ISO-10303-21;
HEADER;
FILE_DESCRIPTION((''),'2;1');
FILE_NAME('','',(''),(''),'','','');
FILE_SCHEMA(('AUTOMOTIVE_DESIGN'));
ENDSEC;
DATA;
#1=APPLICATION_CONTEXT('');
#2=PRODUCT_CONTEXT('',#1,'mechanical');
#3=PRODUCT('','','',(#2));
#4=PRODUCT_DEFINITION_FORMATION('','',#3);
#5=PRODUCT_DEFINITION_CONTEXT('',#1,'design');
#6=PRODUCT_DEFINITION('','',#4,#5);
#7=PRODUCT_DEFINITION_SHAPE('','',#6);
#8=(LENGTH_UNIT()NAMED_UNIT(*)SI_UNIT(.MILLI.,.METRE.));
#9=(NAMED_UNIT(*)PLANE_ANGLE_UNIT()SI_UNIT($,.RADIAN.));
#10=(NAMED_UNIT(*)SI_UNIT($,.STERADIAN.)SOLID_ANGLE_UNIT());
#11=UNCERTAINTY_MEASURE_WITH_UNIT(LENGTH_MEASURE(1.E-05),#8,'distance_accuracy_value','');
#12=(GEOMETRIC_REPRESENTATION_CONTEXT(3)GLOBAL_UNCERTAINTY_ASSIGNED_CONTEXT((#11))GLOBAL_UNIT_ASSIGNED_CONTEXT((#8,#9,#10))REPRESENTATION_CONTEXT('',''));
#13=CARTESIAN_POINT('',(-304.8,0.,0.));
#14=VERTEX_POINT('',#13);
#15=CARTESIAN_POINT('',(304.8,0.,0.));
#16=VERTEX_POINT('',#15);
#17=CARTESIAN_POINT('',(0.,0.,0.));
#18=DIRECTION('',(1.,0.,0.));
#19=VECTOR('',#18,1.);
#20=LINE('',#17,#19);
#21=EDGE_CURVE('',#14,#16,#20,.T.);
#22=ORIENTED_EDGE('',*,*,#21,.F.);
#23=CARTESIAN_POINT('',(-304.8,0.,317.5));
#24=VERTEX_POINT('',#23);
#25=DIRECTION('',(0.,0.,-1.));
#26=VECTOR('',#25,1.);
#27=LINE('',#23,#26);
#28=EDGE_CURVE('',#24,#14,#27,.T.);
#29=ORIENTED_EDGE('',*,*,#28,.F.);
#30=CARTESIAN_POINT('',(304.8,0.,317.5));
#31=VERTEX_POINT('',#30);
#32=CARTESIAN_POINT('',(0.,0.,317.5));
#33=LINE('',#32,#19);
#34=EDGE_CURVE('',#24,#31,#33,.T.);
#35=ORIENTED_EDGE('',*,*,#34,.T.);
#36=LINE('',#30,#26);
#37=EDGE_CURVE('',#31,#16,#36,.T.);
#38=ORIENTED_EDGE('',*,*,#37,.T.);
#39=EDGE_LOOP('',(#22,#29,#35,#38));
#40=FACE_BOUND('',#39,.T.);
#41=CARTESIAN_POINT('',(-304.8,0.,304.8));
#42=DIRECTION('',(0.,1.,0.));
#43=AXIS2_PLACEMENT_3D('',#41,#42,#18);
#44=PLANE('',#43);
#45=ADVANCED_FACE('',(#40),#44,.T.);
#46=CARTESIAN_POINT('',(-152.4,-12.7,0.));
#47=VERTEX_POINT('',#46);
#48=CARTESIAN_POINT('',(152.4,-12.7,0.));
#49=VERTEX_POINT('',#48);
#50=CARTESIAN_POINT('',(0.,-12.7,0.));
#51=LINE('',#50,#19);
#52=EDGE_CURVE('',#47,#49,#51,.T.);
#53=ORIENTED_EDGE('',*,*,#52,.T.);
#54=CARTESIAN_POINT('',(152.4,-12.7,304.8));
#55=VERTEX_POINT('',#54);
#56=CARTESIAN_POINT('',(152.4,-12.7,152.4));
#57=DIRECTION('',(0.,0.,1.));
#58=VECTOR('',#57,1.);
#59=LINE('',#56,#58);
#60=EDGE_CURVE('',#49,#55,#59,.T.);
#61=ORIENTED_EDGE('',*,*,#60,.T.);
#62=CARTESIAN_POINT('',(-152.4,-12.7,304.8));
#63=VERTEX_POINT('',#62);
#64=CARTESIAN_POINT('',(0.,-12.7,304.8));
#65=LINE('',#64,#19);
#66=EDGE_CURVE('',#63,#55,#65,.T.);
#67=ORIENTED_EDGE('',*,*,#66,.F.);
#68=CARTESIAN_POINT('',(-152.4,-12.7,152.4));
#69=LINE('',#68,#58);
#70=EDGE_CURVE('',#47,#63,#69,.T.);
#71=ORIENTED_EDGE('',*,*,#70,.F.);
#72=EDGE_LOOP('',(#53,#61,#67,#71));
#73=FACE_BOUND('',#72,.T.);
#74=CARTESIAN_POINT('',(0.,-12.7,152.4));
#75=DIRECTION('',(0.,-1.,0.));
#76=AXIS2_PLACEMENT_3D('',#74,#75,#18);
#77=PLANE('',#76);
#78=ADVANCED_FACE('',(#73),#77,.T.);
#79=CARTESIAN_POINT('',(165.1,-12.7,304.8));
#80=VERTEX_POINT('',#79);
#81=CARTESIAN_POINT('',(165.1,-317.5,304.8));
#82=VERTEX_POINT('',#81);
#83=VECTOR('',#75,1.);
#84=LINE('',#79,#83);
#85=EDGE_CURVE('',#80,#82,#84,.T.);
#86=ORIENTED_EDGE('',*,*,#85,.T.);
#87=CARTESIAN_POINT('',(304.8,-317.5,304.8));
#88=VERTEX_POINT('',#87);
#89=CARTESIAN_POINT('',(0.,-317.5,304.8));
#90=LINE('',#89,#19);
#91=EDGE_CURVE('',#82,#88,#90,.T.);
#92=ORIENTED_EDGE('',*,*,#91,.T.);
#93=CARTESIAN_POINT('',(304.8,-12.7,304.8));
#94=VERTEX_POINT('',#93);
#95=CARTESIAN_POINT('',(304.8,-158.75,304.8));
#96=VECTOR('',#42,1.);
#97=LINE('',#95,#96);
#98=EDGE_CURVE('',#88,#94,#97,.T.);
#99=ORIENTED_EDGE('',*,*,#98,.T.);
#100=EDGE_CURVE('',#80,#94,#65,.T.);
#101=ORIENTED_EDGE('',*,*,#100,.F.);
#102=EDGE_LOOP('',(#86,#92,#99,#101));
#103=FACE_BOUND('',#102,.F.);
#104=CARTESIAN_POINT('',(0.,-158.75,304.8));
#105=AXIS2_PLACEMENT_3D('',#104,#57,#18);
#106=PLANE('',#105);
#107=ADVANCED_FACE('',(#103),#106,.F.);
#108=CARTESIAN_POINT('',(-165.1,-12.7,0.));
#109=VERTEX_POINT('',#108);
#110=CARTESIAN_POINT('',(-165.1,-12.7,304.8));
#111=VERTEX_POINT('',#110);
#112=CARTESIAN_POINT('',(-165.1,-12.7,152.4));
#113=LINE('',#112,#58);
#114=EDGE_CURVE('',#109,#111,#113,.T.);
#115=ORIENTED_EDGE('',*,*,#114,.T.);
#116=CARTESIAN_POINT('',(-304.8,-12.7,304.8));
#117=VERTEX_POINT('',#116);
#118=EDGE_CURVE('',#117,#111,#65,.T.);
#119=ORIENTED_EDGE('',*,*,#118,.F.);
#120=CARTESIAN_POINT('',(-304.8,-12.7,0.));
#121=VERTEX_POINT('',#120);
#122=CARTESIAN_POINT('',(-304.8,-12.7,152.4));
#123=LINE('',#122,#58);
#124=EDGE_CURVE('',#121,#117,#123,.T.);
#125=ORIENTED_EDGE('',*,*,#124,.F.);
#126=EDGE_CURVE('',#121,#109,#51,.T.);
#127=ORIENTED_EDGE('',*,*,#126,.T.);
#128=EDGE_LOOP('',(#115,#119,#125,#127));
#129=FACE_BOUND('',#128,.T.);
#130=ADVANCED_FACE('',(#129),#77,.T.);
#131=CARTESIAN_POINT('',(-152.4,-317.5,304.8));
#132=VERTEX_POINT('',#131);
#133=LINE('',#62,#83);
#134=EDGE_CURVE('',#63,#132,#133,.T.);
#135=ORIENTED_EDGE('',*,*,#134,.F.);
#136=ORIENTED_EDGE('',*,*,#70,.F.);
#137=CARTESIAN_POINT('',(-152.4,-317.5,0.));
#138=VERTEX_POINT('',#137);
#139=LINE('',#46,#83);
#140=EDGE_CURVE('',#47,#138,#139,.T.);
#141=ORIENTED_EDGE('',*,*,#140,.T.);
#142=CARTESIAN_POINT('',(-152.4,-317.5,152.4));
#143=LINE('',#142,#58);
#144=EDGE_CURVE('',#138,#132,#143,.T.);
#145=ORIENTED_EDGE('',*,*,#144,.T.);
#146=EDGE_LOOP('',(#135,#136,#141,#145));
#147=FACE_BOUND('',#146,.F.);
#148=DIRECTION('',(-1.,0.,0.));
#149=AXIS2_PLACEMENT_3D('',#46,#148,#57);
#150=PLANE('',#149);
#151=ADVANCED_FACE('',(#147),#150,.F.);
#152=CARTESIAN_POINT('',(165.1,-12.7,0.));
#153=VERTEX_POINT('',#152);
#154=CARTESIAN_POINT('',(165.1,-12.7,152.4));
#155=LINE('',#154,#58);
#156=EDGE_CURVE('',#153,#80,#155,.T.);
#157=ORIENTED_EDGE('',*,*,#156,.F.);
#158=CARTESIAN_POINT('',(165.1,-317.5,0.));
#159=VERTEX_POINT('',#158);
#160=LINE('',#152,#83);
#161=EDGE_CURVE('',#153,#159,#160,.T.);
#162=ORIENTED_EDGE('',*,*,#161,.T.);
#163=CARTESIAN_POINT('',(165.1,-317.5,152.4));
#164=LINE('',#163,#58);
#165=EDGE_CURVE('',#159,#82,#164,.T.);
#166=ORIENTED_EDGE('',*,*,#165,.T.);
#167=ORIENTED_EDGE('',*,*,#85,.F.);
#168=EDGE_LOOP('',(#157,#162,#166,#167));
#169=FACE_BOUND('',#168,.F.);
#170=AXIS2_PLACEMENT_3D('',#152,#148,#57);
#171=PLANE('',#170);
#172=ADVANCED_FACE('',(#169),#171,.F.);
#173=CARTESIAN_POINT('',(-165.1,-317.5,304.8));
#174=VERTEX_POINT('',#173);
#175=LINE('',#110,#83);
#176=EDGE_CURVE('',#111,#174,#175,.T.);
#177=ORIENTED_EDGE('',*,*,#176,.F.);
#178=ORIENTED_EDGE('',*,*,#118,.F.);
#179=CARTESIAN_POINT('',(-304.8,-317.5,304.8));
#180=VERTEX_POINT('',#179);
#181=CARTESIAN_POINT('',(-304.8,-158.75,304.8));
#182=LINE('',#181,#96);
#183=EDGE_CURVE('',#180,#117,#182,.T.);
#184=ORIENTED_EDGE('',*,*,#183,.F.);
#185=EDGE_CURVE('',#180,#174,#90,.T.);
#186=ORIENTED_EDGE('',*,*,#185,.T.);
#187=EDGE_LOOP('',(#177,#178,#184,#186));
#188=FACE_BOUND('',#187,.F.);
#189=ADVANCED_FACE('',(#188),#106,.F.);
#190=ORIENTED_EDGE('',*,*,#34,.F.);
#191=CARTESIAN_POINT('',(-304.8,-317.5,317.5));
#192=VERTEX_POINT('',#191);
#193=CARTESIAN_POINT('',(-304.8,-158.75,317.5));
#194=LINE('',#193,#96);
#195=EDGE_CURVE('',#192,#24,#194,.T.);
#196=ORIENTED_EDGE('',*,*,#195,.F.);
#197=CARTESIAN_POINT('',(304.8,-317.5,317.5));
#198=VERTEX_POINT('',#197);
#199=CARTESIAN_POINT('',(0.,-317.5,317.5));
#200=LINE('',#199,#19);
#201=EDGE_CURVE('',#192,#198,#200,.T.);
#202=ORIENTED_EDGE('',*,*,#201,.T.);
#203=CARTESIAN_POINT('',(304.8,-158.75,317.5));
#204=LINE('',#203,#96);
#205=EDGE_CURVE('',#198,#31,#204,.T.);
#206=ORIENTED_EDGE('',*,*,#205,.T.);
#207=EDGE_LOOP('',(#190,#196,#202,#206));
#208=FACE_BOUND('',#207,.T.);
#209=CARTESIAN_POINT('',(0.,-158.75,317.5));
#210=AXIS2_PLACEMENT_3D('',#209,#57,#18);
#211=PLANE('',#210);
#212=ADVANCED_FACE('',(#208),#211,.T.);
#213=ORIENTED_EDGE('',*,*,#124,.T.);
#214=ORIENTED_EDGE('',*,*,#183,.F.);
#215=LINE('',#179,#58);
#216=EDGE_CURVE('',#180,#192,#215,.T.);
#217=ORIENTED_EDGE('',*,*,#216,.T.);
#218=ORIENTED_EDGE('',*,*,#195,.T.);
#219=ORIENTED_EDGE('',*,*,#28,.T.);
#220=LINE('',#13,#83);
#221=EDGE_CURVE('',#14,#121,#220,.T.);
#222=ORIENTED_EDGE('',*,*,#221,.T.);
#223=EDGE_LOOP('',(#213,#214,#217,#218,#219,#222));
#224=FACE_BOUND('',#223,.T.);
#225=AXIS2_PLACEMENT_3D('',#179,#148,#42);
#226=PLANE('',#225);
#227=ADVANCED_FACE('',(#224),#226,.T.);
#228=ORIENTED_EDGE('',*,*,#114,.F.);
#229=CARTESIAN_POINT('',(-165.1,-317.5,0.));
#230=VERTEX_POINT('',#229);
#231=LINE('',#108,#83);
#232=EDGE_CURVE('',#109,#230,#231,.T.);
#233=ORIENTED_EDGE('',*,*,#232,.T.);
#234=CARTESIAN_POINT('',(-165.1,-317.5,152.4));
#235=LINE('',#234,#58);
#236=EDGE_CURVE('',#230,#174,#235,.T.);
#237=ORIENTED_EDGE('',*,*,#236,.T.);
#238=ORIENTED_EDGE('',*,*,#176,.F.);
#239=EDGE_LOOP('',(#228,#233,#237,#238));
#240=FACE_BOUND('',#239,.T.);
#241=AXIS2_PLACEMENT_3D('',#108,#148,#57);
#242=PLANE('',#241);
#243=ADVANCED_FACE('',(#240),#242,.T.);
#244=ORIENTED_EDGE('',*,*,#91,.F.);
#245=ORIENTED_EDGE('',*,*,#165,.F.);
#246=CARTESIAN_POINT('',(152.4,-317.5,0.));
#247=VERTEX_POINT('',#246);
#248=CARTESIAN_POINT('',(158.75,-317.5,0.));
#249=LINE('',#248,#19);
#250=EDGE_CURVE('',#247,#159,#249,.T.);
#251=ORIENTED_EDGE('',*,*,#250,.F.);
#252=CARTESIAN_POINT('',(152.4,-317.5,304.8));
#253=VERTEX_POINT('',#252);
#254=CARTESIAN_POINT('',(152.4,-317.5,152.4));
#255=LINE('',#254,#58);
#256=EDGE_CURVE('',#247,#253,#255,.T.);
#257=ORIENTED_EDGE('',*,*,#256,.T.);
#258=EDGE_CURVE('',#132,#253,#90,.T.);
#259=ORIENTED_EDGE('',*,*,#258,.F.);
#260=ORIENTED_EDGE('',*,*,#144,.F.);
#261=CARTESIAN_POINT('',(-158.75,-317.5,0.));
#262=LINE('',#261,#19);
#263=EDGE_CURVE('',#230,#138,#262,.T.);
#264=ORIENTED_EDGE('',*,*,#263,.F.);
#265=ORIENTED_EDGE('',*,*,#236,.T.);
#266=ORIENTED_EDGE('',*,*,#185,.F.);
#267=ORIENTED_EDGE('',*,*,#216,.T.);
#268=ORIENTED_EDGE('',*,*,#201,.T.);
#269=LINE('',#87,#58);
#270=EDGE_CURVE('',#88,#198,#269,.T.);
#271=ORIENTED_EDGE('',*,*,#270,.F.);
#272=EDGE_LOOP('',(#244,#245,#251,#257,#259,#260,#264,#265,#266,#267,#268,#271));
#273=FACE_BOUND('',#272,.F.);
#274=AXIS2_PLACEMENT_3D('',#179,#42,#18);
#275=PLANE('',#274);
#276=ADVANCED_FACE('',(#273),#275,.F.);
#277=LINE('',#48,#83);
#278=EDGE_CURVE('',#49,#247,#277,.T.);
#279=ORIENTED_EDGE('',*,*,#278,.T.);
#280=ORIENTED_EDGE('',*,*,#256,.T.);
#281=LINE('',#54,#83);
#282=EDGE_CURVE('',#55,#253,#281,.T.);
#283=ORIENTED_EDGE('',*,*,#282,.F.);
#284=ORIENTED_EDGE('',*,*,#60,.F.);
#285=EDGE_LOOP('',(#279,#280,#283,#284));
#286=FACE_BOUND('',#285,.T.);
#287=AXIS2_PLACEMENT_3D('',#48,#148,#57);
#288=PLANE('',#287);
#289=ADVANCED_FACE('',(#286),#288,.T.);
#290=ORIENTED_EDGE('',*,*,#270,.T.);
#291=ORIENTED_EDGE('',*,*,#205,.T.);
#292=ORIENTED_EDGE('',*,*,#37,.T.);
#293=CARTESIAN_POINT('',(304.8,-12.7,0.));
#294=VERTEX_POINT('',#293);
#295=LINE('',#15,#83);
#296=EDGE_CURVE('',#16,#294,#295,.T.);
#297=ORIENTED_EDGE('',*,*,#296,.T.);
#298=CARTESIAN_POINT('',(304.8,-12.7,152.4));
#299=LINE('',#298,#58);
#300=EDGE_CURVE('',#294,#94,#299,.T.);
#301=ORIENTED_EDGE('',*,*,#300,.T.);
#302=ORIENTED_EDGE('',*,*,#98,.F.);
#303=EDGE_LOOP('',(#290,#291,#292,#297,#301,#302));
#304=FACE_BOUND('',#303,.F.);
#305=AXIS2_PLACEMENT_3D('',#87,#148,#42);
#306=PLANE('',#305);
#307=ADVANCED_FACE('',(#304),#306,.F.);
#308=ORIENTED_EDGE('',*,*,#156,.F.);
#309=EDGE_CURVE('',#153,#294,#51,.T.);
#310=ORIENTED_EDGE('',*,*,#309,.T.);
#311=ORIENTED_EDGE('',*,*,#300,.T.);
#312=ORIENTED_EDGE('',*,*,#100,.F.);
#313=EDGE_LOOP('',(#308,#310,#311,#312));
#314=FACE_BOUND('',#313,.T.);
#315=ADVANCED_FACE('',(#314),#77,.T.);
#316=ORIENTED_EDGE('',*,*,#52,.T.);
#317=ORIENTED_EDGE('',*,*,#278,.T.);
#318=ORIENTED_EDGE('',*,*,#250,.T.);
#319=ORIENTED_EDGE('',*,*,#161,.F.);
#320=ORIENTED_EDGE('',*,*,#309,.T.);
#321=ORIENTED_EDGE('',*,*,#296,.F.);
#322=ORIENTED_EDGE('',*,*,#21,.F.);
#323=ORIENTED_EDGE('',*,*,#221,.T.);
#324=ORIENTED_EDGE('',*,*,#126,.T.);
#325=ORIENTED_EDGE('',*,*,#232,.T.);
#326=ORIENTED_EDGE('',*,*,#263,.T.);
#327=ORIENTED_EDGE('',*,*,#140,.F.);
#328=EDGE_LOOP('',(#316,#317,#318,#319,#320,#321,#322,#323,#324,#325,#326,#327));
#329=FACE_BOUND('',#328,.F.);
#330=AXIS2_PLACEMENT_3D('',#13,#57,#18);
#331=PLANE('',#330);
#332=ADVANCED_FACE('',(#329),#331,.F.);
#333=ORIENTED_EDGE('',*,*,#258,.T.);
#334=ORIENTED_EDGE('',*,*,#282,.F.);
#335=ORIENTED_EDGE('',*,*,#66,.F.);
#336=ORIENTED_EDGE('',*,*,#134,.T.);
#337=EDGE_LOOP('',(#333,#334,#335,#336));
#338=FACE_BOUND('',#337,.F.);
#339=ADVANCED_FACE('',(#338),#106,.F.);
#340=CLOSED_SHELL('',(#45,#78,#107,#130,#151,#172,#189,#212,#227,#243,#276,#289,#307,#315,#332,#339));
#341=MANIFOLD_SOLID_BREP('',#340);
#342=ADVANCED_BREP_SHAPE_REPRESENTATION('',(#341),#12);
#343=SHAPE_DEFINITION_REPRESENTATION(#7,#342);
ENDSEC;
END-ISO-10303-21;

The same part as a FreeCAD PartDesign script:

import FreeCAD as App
import Part
import Sketcher
Q = App.Units.Quantity

doc = App.newDocument("Part")
params = doc.addObject("Spreadsheet::Sheet", "Params")
for row, (alias, value) in enumerate([
    ("sketch1_width", "24 in"),
    ("sketch1_height", "12 in"),
    ("pad1_length", "0.5 in"),
    ("sketch2_height", "12 in"),
    ("sketch2_width", "0.5 in"),
    ("pad2_length", "12 in"),
    ("sketch3_width", "24 in"),
    ("sketch3_height", "12.5 in"),
    ("pad3_length", "0.5 in"),
], start=1):
    params.set(f"A{row}", alias)
    params.set(f"B{row}", "=" + value)
    params.setAlias(f"B{row}", alias)

body = doc.addObject("PartDesign::Body", "Body")

# Sketch on XZ plane
sketch1 = body.newObject("Sketcher::SketchObject", "Sketch")
sketch1.AttachmentSupport = (doc.getObject("XZ_Plane"), [""])
sketch1.MapMode = "FlatFace"
sketch1.addGeometry(Part.LineSegment(App.Vector(-305, 305, 0), App.Vector(-305, 0, 0)), False)
sketch1.addGeometry(Part.LineSegment(App.Vector(-305, 0, 0), App.Vector(305, 0, 0)), False)
sketch1.addGeometry(Part.LineSegment(App.Vector(305, 0, 0), App.Vector(305, 305, 0)), False)
sketch1.addGeometry(Part.LineSegment(App.Vector(305, 305, 0), App.Vector(-305, 305, 0)), False)
sketch1.addConstraint(Sketcher.Constraint("Coincident", 0, 2, 1, 1))
sketch1.addConstraint(Sketcher.Constraint("Coincident", 1, 2, 2, 1))
sketch1.addConstraint(Sketcher.Constraint("Coincident", 2, 2, 3, 1))
sketch1.addConstraint(Sketcher.Constraint("Coincident", 3, 2, 0, 1))
sketch1.addConstraint(Sketcher.Constraint("Vertical", 0))
sketch1.addConstraint(Sketcher.Constraint("Horizontal", 1))
sketch1.addConstraint(Sketcher.Constraint("Vertical", 2))
sketch1.addConstraint(Sketcher.Constraint("Horizontal", 3))
sketch1.addConstraint(Sketcher.Constraint("Symmetric", 0, 2, 1, 2, -1, 1))
sketch1.addConstraint(Sketcher.Constraint("DistanceX", 1, 1, 1, 2, Q("24 in")))
sketch1.addConstraint(Sketcher.Constraint("DistanceY", 0, 2, 0, 1, Q("12 in")))
sketch1.setExpression("Constraints[9]", "Params.sketch1_width")
sketch1.setExpression("Constraints[10]", "Params.sketch1_height")
pad1 = body.newObject("PartDesign::Pad", "Pad")
pad1.Profile = sketch1
pad1.setExpression("Length", "Params.pad1_length")

# Sketch on XZ plane
sketch2 = body.newObject("Sketcher::SketchObject", "Sketch001")
sketch2.AttachmentSupport = (doc.getObject("XZ_Plane"), [""])
sketch2.MapMode = "FlatFace"
sketch2.AttachmentOffset = App.Placement(App.Vector(0, 0, 0.5 * 25.4), App.Rotation())
sketch2.addGeometry(Part.LineSegment(App.Vector(-165, 305, 0), App.Vector(-165, 0, 0)), False)
sketch2.addGeometry(Part.LineSegment(App.Vector(-165, 0, 0), App.Vector(-152, 0, 0)), False)
sketch2.addGeometry(Part.LineSegment(App.Vector(-152, 0, 0), App.Vector(-152, 305, 0)), False)
sketch2.addGeometry(Part.LineSegment(App.Vector(-152, 305, 0), App.Vector(-165, 305, 0)), False)
sketch2.addGeometry(Part.LineSegment(App.Vector(152, 305, 0), App.Vector(152, 0, 0)), False)
sketch2.addGeometry(Part.LineSegment(App.Vector(152, 0, 0), App.Vector(165, 0, 0)), False)
sketch2.addGeometry(Part.LineSegment(App.Vector(165, 0, 0), App.Vector(165, 305, 0)), False)
sketch2.addGeometry(Part.LineSegment(App.Vector(165, 305, 0), App.Vector(152, 305, 0)), False)
sketch2.addConstraint(Sketcher.Constraint("Coincident", 0, 2, 1, 1))
sketch2.addConstraint(Sketcher.Constraint("Coincident", 1, 2, 2, 1))
sketch2.addConstraint(Sketcher.Constraint("Coincident", 2, 2, 3, 1))
sketch2.addConstraint(Sketcher.Constraint("Coincident", 3, 2, 0, 1))
sketch2.addConstraint(Sketcher.Constraint("Coincident", 4, 2, 5, 1))
sketch2.addConstraint(Sketcher.Constraint("Coincident", 5, 2, 6, 1))
sketch2.addConstraint(Sketcher.Constraint("Coincident", 6, 2, 7, 1))
sketch2.addConstraint(Sketcher.Constraint("Coincident", 7, 2, 4, 1))
sketch2.addConstraint(Sketcher.Constraint("Vertical", 0))
sketch2.addConstraint(Sketcher.Constraint("Horizontal", 1))
sketch2.addConstraint(Sketcher.Constraint("Vertical", 2))
sketch2.addConstraint(Sketcher.Constraint("Horizontal", 3))
sketch2.addConstraint(Sketcher.Constraint("Vertical", 4))
sketch2.addConstraint(Sketcher.Constraint("Horizontal", 5))
sketch2.addConstraint(Sketcher.Constraint("Vertical", 6))
sketch2.addConstraint(Sketcher.Constraint("Horizontal", 7))
sketch2.addConstraint(Sketcher.Constraint("Symmetric", 1, 2, 4, 2, -1, 1))
sketch2.addConstraint(Sketcher.Constraint("Symmetric", 0, 2, 5, 2, -2))
sketch2.addConstraint(Sketcher.Constraint("Horizontal", 3, 2, 6, 2))
sketch2.addConstraint(Sketcher.Constraint("DistanceY", 0, 2, 0, 1, Q("12 in")))
sketch2.addConstraint(Sketcher.Constraint("DistanceX", 1, 1, 1, 2, Q("0.5 in")))
sketch2.addConstraint(Sketcher.Constraint("DistanceX", 1, 2, -1, 1, Q("6 in")))
sketch2.setExpression("Constraints[19]", "Params.sketch2_height")
sketch2.setExpression("Constraints[20]", "Params.sketch2_width")
pad2 = body.newObject("PartDesign::Pad", "Pad001")
pad2.Profile = sketch2
pad2.setExpression("Length", "Params.pad2_length")

# Sketch on XY plane
sketch3 = body.newObject("Sketcher::SketchObject", "Sketch002")
sketch3.AttachmentSupport = (doc.getObject("XY_Plane"), [""])
sketch3.MapMode = "FlatFace"
sketch3.AttachmentOffset = App.Placement(App.Vector(0, 0, 12 * 25.4), App.Rotation())
sketch3.addGeometry(Part.LineSegment(App.Vector(-305, 0, 0), App.Vector(-305, -318, 0)), False)
sketch3.addGeometry(Part.LineSegment(App.Vector(-305, -318, 0), App.Vector(305, -318, 0)), False)
sketch3.addGeometry(Part.LineSegment(App.Vector(305, -318, 0), App.Vector(305, 0, 0)), False)
sketch3.addGeometry(Part.LineSegment(App.Vector(305, 0, 0), App.Vector(-305, 0, 0)), False)
sketch3.addConstraint(Sketcher.Constraint("Coincident", 0, 2, 1, 1))
sketch3.addConstraint(Sketcher.Constraint("Coincident", 1, 2, 2, 1))
sketch3.addConstraint(Sketcher.Constraint("Coincident", 2, 2, 3, 1))
sketch3.addConstraint(Sketcher.Constraint("Coincident", 3, 2, 0, 1))
sketch3.addConstraint(Sketcher.Constraint("Vertical", 0))
sketch3.addConstraint(Sketcher.Constraint("Horizontal", 1))
sketch3.addConstraint(Sketcher.Constraint("Vertical", 2))
sketch3.addConstraint(Sketcher.Constraint("Horizontal", 3))
sketch3.addConstraint(Sketcher.Constraint("Symmetric", 2, 2, 3, 2, -1, 1))
sketch3.addConstraint(Sketcher.Constraint("DistanceX", 1, 1, 1, 2, Q("24 in")))
sketch3.addConstraint(Sketcher.Constraint("DistanceY", 0, 2, 0, 1, Q("12.5 in")))
sketch3.setExpression("Constraints[9]", "Params.sketch3_width")
sketch3.setExpression("Constraints[10]", "Params.sketch3_height")
pad3 = body.newObject("PartDesign::Pad", "Pad002")
pad3.Profile = sketch3
pad3.setExpression("Length", "Params.pad3_length")

doc.recompute()
